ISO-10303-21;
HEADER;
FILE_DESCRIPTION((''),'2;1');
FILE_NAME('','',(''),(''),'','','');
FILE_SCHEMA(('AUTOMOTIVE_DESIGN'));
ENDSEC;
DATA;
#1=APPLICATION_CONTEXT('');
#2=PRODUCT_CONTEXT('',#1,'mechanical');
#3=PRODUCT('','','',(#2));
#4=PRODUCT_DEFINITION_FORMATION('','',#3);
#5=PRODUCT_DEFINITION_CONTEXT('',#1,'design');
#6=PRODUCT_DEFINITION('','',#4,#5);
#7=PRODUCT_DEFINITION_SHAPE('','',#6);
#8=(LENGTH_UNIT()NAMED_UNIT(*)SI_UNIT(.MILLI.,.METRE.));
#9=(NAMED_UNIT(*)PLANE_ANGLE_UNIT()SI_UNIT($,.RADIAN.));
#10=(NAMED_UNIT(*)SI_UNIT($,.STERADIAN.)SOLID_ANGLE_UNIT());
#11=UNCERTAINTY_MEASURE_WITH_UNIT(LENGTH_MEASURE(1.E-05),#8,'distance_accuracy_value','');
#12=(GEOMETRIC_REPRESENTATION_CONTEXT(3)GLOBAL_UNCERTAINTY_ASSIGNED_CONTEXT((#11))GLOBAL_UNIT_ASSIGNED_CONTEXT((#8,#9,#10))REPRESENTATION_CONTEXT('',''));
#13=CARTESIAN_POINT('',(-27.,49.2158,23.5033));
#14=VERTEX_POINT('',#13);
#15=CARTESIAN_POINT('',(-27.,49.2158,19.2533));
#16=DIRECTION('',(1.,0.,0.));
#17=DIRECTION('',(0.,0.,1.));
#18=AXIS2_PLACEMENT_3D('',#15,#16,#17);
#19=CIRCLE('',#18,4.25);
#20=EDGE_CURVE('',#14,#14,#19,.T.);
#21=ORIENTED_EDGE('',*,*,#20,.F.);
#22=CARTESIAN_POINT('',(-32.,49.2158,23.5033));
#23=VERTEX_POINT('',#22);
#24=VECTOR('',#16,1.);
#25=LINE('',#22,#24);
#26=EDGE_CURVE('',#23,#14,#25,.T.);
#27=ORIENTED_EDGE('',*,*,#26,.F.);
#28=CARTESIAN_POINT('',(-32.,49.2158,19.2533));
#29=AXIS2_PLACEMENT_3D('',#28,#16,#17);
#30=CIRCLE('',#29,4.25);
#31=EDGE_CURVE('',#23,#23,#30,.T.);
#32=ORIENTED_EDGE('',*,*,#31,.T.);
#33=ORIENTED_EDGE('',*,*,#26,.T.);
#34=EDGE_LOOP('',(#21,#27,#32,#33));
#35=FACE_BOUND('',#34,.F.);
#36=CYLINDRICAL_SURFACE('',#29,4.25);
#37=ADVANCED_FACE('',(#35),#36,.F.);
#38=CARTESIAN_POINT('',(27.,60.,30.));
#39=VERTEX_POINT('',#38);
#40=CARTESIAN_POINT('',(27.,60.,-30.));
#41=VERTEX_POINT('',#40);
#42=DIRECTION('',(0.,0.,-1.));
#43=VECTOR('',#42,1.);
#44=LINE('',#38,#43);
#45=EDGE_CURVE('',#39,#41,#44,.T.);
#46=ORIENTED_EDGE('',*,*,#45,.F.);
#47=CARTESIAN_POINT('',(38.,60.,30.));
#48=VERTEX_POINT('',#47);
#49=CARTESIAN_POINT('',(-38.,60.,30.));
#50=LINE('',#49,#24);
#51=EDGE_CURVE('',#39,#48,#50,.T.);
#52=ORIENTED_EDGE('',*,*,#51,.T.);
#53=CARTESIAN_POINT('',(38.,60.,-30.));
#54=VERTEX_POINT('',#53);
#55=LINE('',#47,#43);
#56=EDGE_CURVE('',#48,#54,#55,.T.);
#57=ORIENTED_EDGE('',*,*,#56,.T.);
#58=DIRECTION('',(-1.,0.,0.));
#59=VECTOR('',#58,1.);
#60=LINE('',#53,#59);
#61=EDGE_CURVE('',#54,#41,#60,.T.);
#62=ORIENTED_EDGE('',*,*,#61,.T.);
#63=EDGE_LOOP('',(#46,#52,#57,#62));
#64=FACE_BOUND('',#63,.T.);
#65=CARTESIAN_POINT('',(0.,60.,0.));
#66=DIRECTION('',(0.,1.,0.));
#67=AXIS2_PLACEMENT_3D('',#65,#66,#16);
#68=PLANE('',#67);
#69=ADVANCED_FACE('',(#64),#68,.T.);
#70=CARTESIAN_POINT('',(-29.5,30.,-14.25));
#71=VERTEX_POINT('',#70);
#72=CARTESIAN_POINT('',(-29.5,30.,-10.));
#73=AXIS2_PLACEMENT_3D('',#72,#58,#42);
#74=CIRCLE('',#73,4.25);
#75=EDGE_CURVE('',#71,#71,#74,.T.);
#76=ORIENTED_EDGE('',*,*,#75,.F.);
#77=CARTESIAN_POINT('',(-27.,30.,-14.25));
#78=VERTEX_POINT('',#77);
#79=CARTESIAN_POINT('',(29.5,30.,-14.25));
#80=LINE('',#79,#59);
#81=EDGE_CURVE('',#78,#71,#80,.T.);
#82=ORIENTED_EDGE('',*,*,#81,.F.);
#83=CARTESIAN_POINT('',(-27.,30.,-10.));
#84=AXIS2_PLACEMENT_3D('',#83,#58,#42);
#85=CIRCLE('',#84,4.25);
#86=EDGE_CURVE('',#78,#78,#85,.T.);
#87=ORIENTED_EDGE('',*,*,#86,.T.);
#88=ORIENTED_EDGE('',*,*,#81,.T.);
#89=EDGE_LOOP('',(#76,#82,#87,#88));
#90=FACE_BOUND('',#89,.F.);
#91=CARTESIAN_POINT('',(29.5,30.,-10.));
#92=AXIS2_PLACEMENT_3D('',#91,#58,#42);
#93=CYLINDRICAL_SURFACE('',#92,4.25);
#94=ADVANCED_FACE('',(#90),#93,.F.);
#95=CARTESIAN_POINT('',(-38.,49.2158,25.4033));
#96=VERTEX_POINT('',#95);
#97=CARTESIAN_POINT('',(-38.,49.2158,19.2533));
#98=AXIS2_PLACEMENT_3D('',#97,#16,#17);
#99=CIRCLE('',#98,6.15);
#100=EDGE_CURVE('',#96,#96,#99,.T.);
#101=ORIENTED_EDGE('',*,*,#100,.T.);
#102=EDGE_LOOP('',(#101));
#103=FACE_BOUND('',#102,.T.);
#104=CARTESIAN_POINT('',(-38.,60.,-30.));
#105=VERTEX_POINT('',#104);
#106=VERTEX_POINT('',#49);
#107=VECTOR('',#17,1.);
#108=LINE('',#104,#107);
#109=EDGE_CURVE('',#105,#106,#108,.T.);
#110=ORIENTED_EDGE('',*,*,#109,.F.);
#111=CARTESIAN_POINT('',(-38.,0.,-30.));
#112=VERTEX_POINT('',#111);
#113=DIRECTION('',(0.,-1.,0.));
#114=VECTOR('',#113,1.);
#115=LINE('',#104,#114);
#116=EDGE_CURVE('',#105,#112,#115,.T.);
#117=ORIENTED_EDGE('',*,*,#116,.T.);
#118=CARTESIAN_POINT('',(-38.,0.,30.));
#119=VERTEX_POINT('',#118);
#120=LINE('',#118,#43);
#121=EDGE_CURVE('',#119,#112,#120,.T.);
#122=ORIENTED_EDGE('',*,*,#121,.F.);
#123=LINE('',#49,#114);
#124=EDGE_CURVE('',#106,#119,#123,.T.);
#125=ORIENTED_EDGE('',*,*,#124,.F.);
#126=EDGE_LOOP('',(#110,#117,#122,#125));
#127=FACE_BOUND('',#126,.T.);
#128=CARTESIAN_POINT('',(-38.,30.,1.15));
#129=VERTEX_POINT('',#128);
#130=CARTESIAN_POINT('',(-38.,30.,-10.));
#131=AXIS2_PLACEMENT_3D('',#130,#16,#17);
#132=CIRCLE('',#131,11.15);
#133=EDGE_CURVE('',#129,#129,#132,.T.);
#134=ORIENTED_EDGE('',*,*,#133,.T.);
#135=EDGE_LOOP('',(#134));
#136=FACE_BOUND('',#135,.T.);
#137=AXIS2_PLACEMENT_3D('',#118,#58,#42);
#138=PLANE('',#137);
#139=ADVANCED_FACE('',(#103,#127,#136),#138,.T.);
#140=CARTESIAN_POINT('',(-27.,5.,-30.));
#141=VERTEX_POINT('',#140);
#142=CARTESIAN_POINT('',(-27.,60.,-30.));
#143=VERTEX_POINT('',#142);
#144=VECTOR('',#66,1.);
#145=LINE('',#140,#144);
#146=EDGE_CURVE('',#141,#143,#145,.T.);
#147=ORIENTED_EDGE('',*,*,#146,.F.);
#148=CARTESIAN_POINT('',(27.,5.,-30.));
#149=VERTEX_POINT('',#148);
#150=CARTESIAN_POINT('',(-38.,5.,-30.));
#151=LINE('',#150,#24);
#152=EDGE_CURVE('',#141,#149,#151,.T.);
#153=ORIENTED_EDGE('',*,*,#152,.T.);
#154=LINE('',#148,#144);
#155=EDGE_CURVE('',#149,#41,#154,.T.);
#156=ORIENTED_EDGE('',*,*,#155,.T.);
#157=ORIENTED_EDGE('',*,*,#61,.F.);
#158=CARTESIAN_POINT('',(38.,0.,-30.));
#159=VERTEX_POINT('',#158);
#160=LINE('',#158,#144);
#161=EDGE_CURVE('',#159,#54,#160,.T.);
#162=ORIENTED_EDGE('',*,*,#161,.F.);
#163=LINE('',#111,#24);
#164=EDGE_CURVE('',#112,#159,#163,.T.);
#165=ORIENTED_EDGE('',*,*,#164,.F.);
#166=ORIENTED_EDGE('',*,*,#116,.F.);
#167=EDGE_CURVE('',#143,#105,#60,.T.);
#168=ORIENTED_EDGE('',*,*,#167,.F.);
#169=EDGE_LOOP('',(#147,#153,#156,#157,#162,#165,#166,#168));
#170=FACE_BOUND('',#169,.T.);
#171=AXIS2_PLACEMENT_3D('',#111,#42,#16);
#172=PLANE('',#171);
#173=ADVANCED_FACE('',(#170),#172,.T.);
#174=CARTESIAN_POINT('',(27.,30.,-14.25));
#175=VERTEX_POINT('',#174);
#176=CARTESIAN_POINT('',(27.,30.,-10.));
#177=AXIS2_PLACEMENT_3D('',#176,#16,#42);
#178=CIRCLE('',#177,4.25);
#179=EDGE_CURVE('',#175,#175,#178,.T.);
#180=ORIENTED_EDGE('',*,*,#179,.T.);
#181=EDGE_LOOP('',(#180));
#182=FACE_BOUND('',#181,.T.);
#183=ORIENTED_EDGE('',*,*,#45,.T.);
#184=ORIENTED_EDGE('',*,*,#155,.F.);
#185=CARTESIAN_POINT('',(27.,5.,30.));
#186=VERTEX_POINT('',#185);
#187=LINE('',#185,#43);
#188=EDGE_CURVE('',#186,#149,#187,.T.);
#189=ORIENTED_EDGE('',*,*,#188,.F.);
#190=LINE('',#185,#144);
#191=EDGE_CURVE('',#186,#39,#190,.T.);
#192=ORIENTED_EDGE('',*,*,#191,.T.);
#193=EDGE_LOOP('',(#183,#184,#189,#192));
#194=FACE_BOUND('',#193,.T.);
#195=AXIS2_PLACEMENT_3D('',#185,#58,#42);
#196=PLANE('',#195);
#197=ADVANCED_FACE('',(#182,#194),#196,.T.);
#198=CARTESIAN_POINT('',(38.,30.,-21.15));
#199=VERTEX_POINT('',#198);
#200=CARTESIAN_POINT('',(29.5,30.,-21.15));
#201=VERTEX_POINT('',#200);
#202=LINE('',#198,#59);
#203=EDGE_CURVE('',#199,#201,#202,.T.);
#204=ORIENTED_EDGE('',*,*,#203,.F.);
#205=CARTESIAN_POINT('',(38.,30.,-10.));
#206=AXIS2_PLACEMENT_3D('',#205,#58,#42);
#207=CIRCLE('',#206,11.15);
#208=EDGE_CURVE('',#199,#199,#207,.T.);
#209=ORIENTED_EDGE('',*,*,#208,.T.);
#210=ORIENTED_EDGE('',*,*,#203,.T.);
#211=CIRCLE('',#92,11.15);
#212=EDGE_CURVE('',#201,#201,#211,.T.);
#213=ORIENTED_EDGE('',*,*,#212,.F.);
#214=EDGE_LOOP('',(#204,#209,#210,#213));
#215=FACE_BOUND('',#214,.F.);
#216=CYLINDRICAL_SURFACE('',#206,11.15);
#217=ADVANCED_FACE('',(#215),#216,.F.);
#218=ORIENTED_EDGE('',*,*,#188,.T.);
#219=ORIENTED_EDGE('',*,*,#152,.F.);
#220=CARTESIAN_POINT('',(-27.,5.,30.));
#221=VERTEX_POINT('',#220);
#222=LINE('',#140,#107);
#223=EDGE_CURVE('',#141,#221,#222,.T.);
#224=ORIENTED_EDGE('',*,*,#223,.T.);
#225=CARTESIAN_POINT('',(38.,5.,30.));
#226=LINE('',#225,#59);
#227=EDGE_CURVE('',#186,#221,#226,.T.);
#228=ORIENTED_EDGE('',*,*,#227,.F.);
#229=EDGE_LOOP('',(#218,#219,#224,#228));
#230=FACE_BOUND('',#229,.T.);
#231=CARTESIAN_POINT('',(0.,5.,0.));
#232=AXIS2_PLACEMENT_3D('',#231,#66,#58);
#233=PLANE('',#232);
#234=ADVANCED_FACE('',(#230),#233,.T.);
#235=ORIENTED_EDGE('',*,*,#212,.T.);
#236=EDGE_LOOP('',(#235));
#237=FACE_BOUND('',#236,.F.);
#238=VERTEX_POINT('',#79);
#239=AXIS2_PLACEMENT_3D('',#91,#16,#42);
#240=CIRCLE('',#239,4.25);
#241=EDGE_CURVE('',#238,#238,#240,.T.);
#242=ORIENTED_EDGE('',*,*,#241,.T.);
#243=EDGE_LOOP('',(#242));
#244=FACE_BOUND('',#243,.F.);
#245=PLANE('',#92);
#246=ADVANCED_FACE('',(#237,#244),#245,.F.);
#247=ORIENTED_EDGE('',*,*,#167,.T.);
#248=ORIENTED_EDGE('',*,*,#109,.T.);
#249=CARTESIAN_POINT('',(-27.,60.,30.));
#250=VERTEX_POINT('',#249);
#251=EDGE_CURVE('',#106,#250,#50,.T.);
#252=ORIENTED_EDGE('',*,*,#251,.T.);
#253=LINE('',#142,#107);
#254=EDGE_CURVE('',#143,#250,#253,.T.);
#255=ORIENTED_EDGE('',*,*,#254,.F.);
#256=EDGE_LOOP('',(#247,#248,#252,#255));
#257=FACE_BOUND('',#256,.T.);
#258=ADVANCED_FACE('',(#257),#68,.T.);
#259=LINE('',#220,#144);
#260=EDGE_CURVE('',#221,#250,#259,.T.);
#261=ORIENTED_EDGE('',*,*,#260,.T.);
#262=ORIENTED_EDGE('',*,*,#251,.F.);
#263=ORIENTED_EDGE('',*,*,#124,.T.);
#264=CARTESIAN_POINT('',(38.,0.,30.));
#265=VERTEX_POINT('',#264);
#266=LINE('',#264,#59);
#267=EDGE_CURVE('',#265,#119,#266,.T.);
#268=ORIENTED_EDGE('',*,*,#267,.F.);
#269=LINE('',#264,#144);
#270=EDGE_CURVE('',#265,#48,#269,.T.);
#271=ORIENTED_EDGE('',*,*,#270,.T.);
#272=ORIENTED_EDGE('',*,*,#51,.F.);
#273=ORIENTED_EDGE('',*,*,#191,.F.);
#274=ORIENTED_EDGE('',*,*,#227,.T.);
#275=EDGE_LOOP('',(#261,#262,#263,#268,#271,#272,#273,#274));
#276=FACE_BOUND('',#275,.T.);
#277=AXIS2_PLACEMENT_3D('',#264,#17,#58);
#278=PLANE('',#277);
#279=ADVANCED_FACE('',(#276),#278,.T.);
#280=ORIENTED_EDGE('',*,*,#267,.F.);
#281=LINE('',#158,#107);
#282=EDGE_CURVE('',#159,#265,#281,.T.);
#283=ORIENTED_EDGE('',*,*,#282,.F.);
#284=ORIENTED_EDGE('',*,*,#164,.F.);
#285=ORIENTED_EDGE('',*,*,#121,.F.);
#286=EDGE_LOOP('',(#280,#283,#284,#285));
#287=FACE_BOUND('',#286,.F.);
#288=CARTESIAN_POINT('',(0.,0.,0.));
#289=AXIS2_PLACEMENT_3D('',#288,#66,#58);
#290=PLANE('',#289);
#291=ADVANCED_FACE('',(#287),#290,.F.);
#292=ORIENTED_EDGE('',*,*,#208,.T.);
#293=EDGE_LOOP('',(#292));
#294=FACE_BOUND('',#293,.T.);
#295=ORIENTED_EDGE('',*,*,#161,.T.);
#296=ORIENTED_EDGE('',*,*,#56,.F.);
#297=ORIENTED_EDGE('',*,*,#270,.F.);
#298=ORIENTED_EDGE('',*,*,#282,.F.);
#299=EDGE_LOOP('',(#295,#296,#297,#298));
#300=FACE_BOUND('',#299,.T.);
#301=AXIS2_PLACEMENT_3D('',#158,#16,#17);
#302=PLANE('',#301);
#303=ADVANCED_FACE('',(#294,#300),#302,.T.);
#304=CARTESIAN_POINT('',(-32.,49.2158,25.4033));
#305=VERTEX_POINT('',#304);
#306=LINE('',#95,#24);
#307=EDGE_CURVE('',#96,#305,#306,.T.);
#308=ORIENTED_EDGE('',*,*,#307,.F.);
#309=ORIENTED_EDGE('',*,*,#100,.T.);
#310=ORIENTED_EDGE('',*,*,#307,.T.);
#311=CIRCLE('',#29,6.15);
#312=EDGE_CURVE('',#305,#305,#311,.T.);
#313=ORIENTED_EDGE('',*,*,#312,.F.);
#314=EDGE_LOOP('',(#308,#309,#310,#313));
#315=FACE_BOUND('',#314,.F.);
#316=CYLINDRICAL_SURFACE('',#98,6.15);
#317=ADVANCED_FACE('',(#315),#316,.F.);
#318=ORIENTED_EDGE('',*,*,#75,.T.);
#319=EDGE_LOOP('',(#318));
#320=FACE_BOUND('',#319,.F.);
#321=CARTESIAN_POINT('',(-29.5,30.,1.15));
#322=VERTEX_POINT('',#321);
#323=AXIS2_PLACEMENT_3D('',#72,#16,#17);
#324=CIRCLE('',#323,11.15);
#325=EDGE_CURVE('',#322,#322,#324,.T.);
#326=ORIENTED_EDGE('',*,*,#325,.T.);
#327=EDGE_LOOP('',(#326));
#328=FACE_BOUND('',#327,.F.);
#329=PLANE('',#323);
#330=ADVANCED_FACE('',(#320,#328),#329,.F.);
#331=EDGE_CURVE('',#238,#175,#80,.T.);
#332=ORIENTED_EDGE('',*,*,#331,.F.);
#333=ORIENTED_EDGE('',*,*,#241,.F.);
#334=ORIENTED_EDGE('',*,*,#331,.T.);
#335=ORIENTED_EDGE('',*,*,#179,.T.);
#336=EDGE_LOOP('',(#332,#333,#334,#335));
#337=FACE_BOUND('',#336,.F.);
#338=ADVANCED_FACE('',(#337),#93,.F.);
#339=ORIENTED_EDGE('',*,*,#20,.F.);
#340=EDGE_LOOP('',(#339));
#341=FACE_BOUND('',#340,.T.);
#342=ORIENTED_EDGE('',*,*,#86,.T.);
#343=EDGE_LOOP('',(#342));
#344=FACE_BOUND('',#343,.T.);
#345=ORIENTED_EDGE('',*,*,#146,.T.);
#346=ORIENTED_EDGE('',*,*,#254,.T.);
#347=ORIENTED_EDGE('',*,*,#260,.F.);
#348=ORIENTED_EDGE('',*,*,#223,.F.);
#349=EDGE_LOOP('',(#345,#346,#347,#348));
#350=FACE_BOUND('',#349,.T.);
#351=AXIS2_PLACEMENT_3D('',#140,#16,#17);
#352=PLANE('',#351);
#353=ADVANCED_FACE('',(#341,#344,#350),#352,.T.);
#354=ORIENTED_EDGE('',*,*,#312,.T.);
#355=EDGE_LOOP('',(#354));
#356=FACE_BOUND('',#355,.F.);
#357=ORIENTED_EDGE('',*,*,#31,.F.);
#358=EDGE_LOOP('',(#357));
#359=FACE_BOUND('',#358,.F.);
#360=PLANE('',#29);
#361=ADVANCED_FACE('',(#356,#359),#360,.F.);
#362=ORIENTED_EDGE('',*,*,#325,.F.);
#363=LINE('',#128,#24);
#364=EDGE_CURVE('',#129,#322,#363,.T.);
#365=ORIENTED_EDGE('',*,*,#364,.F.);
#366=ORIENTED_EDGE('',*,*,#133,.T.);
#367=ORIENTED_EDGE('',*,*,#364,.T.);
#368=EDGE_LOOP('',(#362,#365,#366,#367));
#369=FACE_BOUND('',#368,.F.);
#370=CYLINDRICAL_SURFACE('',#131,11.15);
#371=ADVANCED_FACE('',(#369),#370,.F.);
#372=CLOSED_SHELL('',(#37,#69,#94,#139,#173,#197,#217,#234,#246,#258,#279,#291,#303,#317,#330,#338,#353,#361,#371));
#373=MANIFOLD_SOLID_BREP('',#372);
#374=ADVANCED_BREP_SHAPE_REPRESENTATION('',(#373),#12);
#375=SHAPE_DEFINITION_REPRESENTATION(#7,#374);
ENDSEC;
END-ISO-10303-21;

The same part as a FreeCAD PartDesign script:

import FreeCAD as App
import Part
import Sketcher

doc = App.newDocument("Part")
body = doc.addObject("PartDesign::Body", "Body")

sketch1 = doc.addObject("Sketcher::SketchObject", "Sketch")
body.addObject(sketch1)
sketch1.AttachmentSupport = (doc.XZ_Plane, [""])
sketch1.MapMode = "FlatFace"
sketch1.addGeometry(Part.LineSegment(App.Vector(-38, 30, 0), App.Vector(38, 30, 0)), False)
sketch1.addGeometry(Part.LineSegment(App.Vector(38, 30, 0), App.Vector(38, -30, 0)), False)
sketch1.addGeometry(Part.LineSegment(App.Vector(38, -30, 0), App.Vector(-38, -30, 0)), False)
sketch1.addGeometry(Part.LineSegment(App.Vector(-38, -30, 0), App.Vector(-38, 30, 0)), False)
sketch1.addConstraint(Sketcher.Constraint("Coincident", 0, 2, 1, 1))
sketch1.addConstraint(Sketcher.Constraint("Coincident", 1, 2, 2, 1))
sketch1.addConstraint(Sketcher.Constraint("Coincident", 2, 2, 3, 1))
sketch1.addConstraint(Sketcher.Constraint("Coincident", 3, 2, 0, 1))
sketch1.addConstraint(Sketcher.Constraint("Horizontal", 0))
sketch1.addConstraint(Sketcher.Constraint("Vertical", 1))
sketch1.addConstraint(Sketcher.Constraint("Horizontal", 2))
sketch1.addConstraint(Sketcher.Constraint("Vertical", 3))
sketch1.addConstraint(Sketcher.Constraint("Symmetric", 0, 2, 2, 2, -1, 1))
sketch1.addConstraint(Sketcher.Constraint("DistanceX", 0, 1, 0, 2, 76.0))
sketch1.addConstraint(Sketcher.Constraint("DistanceY", 1, 2, 1, 1, 60.0))
pad1 = doc.addObject("PartDesign::Pad", "Pad")
body.addObject(pad1)
pad1.Profile = sketch1
pad1.Length = 5
pad1.Reversed = True

sketch2 = doc.addObject("Sketcher::SketchObject", "Sketch001")
body.addObject(sketch2)
sketch2.AttachmentSupport = (doc.XZ_Plane, [""])
sketch2.MapMode = "FlatFace"
sketch2.AttachmentOffset = App.Placement(App.Vector(0, 0, -5), App.Rotation())
sketch2.addGeometry(Part.LineSegment(App.Vector(38, 30, 0), App.Vector(38, -30, 0)), False)
sketch2.addGeometry(Part.LineSegment(App.Vector(38, -30, 0), App.Vector(27, -30, 0)), False)
sketch2.addGeometry(Part.LineSegment(App.Vector(27, -30, 0), App.Vector(27, 30, 0)), False)
sketch2.addGeometry(Part.LineSegment(App.Vector(27, 30, 0), App.Vector(38, 30, 0)), False)
sketch2.addGeometry(Part.LineSegment(App.Vector(-27, 30, 0), App.Vector(-27, -30, 0)), False)
sketch2.addGeometry(Part.LineSegment(App.Vector(-27, -30, 0), App.Vector(-38, -30, 0)), False)
sketch2.addGeometry(Part.LineSegment(App.Vector(-38, -30, 0), App.Vector(-38, 30, 0)), False)
sketch2.addGeometry(Part.LineSegment(App.Vector(-38, 30, 0), App.Vector(-27, 30, 0)), False)
sketch2.addConstraint(Sketcher.Constraint("Coincident", 0, 2, 1, 1))
sketch2.addConstraint(Sketcher.Constraint("Coincident", 1, 2, 2, 1))
sketch2.addConstraint(Sketcher.Constraint("Coincident", 2, 2, 3, 1))
sketch2.addConstraint(Sketcher.Constraint("Coincident", 3, 2, 0, 1))
sketch2.addConstraint(Sketcher.Constraint("Coincident", 4, 2, 5, 1))
sketch2.addConstraint(Sketcher.Constraint("Coincident", 5, 2, 6, 1))
sketch2.addConstraint(Sketcher.Constraint("Coincident", 6, 2, 7, 1))
sketch2.addConstraint(Sketcher.Constraint("Coincident", 7, 2, 4, 1))
sketch2.addConstraint(Sketcher.Constraint("Vertical", 0))
sketch2.addConstraint(Sketcher.Constraint("Horizontal", 1))
sketch2.addConstraint(Sketcher.Constraint("Vertical", 2))
sketch2.addConstraint(Sketcher.Constraint("Horizontal", 3))
sketch2.addConstraint(Sketcher.Constraint("Vertical", 4))
sketch2.addConstraint(Sketcher.Constraint("Horizontal", 5))
sketch2.addConstraint(Sketcher.Constraint("Vertical", 6))
sketch2.addConstraint(Sketcher.Constraint("Horizontal", 7))
sketch2.addConstraint(Sketcher.Constraint("Symmetric", 2, 2, 4, 2, -1, 1))
sketch2.addConstraint(Sketcher.Constraint("Symmetric", 0, 2, 6, 2, -1, 1))
sketch2.addConstraint(Sketcher.Constraint("Horizontal", 1, 2, 4, 2))
sketch2.addConstraint(Sketcher.Constraint("DistanceX", 1, 2, 1, 1, 11.0))
sketch2.addConstraint(Sketcher.Constraint("DistanceY", 0, 2, 0, 1, 60.0))
sketch2.addConstraint(Sketcher.Constraint("DistanceX", -1, 1, 0, 2, 38.0))
pad2 = doc.addObject("PartDesign::Pad", "Pad001")
body.addObject(pad2)
pad2.Profile = sketch2
pad2.Length = 55
pad2.Reversed = True

sketch3 = doc.addObject("Sketcher::SketchObject", "Sketch002")
body.addObject(sketch3)
sketch3.AttachmentSupport = (doc.YZ_Plane, [""])
sketch3.MapMode = "FlatFace"
sketch3.AttachmentOffset = App.Placement(App.Vector(0, 0, 38), App.Rotation())
sketch3.addGeometry(Part.Circle(App.Vector(30, -10, 0), App.Vector(0, 0, 1), 4.25), False)
sketch3.addConstraint(Sketcher.Constraint("Diameter", 0, 8.5))
sketch3.addConstraint(Sketcher.Constraint("DistanceX", -1, 1, 0, 3, 30.0))
sketch3.addConstraint(Sketcher.Constraint("DistanceY", 0, 3, -1, 1, 10.0))
doc.recompute()
hole = doc.addObject("PartDesign::Hole", "Hole")
body.addObject(hole)
hole.Profile = sketch3
hole.ThreadType = "None"
hole.Diameter = 8.5
hole.DepthType = "ThroughAll"
hole.HoleCutType = "Counterbore"
hole.HoleCutDiameter = 22.3
hole.HoleCutDepth = 8.5

sketch4 = doc.addObject("Sketcher::SketchObject", "Sketch003")
body.addObject(sketch4)
sketch4.AttachmentSupport = (doc.YZ_Plane, [""])
sketch4.MapMode = "FlatFace"
sketch4.AttachmentOffset = App.Placement(App.Vector(0, 0, -38), App.Rotation())
sketch4.addGeometry(Part.Circle(App.Vector(30, -10, 0), App.Vector(0, 0, 1), 4.25), False)
sketch4.addConstraint(Sketcher.Constraint("Diameter", 0, 8.5))
sketch4.addConstraint(Sketcher.Constraint("DistanceX", -1, 1, 0, 3, 30.0))
sketch4.addConstraint(Sketcher.Constraint("DistanceY", 0, 3, -1, 1, 10.0))
doc.recompute()
hole2 = doc.addObject("PartDesign::Hole", "Hole001")
body.addObject(hole2)
hole2.Profile = sketch4
hole2.ThreadType = "None"
hole2.Diameter = 8.5
hole2.DepthType = "ThroughAll"
hole2.HoleCutType = "Counterbore"
hole2.HoleCutDiameter = 22.3
hole2.HoleCutDepth = 8.5
hole2.Reversed = True

sketch5 = doc.addObject("Sketcher::SketchObject", "Sketch004")
body.addObject(sketch5)
sketch5.AttachmentSupport = (doc.YZ_Plane, [""])
sketch5.MapMode = "FlatFace"
sketch5.AttachmentOffset = App.Placement(App.Vector(0, 0, -38), App.Rotation())
sketch5.addGeometry(Part.Circle(App.Vector(49.2158, 19.2533, 0), App.Vector(0, 0, 1), 4.25), False)
sketch5.addConstraint(Sketcher.Constraint("Diameter", 0, 8.5))
sketch5.addConstraint(Sketcher.Constraint("DistanceX", -1, 1, 0, 3, 49.2158))
sketch5.addConstraint(Sketcher.Constraint("DistanceY", -1, 1, 0, 3, 19.2533))
doc.recompute()
hole3 = doc.addObject("PartDesign::Hole", "Hole002")
body.addObject(hole3)
hole3.Profile = sketch5
hole3.ThreadType = "None"
hole3.Diameter = 8.5
hole3.DepthType = "Dimension"
hole3.Depth = 11
hole3.DrillPoint = "Flat"
hole3.HoleCutType = "Counterbore"
hole3.HoleCutDiameter = 12.3
hole3.HoleCutDepth = 6
hole3.Reversed = True

doc.recompute()
